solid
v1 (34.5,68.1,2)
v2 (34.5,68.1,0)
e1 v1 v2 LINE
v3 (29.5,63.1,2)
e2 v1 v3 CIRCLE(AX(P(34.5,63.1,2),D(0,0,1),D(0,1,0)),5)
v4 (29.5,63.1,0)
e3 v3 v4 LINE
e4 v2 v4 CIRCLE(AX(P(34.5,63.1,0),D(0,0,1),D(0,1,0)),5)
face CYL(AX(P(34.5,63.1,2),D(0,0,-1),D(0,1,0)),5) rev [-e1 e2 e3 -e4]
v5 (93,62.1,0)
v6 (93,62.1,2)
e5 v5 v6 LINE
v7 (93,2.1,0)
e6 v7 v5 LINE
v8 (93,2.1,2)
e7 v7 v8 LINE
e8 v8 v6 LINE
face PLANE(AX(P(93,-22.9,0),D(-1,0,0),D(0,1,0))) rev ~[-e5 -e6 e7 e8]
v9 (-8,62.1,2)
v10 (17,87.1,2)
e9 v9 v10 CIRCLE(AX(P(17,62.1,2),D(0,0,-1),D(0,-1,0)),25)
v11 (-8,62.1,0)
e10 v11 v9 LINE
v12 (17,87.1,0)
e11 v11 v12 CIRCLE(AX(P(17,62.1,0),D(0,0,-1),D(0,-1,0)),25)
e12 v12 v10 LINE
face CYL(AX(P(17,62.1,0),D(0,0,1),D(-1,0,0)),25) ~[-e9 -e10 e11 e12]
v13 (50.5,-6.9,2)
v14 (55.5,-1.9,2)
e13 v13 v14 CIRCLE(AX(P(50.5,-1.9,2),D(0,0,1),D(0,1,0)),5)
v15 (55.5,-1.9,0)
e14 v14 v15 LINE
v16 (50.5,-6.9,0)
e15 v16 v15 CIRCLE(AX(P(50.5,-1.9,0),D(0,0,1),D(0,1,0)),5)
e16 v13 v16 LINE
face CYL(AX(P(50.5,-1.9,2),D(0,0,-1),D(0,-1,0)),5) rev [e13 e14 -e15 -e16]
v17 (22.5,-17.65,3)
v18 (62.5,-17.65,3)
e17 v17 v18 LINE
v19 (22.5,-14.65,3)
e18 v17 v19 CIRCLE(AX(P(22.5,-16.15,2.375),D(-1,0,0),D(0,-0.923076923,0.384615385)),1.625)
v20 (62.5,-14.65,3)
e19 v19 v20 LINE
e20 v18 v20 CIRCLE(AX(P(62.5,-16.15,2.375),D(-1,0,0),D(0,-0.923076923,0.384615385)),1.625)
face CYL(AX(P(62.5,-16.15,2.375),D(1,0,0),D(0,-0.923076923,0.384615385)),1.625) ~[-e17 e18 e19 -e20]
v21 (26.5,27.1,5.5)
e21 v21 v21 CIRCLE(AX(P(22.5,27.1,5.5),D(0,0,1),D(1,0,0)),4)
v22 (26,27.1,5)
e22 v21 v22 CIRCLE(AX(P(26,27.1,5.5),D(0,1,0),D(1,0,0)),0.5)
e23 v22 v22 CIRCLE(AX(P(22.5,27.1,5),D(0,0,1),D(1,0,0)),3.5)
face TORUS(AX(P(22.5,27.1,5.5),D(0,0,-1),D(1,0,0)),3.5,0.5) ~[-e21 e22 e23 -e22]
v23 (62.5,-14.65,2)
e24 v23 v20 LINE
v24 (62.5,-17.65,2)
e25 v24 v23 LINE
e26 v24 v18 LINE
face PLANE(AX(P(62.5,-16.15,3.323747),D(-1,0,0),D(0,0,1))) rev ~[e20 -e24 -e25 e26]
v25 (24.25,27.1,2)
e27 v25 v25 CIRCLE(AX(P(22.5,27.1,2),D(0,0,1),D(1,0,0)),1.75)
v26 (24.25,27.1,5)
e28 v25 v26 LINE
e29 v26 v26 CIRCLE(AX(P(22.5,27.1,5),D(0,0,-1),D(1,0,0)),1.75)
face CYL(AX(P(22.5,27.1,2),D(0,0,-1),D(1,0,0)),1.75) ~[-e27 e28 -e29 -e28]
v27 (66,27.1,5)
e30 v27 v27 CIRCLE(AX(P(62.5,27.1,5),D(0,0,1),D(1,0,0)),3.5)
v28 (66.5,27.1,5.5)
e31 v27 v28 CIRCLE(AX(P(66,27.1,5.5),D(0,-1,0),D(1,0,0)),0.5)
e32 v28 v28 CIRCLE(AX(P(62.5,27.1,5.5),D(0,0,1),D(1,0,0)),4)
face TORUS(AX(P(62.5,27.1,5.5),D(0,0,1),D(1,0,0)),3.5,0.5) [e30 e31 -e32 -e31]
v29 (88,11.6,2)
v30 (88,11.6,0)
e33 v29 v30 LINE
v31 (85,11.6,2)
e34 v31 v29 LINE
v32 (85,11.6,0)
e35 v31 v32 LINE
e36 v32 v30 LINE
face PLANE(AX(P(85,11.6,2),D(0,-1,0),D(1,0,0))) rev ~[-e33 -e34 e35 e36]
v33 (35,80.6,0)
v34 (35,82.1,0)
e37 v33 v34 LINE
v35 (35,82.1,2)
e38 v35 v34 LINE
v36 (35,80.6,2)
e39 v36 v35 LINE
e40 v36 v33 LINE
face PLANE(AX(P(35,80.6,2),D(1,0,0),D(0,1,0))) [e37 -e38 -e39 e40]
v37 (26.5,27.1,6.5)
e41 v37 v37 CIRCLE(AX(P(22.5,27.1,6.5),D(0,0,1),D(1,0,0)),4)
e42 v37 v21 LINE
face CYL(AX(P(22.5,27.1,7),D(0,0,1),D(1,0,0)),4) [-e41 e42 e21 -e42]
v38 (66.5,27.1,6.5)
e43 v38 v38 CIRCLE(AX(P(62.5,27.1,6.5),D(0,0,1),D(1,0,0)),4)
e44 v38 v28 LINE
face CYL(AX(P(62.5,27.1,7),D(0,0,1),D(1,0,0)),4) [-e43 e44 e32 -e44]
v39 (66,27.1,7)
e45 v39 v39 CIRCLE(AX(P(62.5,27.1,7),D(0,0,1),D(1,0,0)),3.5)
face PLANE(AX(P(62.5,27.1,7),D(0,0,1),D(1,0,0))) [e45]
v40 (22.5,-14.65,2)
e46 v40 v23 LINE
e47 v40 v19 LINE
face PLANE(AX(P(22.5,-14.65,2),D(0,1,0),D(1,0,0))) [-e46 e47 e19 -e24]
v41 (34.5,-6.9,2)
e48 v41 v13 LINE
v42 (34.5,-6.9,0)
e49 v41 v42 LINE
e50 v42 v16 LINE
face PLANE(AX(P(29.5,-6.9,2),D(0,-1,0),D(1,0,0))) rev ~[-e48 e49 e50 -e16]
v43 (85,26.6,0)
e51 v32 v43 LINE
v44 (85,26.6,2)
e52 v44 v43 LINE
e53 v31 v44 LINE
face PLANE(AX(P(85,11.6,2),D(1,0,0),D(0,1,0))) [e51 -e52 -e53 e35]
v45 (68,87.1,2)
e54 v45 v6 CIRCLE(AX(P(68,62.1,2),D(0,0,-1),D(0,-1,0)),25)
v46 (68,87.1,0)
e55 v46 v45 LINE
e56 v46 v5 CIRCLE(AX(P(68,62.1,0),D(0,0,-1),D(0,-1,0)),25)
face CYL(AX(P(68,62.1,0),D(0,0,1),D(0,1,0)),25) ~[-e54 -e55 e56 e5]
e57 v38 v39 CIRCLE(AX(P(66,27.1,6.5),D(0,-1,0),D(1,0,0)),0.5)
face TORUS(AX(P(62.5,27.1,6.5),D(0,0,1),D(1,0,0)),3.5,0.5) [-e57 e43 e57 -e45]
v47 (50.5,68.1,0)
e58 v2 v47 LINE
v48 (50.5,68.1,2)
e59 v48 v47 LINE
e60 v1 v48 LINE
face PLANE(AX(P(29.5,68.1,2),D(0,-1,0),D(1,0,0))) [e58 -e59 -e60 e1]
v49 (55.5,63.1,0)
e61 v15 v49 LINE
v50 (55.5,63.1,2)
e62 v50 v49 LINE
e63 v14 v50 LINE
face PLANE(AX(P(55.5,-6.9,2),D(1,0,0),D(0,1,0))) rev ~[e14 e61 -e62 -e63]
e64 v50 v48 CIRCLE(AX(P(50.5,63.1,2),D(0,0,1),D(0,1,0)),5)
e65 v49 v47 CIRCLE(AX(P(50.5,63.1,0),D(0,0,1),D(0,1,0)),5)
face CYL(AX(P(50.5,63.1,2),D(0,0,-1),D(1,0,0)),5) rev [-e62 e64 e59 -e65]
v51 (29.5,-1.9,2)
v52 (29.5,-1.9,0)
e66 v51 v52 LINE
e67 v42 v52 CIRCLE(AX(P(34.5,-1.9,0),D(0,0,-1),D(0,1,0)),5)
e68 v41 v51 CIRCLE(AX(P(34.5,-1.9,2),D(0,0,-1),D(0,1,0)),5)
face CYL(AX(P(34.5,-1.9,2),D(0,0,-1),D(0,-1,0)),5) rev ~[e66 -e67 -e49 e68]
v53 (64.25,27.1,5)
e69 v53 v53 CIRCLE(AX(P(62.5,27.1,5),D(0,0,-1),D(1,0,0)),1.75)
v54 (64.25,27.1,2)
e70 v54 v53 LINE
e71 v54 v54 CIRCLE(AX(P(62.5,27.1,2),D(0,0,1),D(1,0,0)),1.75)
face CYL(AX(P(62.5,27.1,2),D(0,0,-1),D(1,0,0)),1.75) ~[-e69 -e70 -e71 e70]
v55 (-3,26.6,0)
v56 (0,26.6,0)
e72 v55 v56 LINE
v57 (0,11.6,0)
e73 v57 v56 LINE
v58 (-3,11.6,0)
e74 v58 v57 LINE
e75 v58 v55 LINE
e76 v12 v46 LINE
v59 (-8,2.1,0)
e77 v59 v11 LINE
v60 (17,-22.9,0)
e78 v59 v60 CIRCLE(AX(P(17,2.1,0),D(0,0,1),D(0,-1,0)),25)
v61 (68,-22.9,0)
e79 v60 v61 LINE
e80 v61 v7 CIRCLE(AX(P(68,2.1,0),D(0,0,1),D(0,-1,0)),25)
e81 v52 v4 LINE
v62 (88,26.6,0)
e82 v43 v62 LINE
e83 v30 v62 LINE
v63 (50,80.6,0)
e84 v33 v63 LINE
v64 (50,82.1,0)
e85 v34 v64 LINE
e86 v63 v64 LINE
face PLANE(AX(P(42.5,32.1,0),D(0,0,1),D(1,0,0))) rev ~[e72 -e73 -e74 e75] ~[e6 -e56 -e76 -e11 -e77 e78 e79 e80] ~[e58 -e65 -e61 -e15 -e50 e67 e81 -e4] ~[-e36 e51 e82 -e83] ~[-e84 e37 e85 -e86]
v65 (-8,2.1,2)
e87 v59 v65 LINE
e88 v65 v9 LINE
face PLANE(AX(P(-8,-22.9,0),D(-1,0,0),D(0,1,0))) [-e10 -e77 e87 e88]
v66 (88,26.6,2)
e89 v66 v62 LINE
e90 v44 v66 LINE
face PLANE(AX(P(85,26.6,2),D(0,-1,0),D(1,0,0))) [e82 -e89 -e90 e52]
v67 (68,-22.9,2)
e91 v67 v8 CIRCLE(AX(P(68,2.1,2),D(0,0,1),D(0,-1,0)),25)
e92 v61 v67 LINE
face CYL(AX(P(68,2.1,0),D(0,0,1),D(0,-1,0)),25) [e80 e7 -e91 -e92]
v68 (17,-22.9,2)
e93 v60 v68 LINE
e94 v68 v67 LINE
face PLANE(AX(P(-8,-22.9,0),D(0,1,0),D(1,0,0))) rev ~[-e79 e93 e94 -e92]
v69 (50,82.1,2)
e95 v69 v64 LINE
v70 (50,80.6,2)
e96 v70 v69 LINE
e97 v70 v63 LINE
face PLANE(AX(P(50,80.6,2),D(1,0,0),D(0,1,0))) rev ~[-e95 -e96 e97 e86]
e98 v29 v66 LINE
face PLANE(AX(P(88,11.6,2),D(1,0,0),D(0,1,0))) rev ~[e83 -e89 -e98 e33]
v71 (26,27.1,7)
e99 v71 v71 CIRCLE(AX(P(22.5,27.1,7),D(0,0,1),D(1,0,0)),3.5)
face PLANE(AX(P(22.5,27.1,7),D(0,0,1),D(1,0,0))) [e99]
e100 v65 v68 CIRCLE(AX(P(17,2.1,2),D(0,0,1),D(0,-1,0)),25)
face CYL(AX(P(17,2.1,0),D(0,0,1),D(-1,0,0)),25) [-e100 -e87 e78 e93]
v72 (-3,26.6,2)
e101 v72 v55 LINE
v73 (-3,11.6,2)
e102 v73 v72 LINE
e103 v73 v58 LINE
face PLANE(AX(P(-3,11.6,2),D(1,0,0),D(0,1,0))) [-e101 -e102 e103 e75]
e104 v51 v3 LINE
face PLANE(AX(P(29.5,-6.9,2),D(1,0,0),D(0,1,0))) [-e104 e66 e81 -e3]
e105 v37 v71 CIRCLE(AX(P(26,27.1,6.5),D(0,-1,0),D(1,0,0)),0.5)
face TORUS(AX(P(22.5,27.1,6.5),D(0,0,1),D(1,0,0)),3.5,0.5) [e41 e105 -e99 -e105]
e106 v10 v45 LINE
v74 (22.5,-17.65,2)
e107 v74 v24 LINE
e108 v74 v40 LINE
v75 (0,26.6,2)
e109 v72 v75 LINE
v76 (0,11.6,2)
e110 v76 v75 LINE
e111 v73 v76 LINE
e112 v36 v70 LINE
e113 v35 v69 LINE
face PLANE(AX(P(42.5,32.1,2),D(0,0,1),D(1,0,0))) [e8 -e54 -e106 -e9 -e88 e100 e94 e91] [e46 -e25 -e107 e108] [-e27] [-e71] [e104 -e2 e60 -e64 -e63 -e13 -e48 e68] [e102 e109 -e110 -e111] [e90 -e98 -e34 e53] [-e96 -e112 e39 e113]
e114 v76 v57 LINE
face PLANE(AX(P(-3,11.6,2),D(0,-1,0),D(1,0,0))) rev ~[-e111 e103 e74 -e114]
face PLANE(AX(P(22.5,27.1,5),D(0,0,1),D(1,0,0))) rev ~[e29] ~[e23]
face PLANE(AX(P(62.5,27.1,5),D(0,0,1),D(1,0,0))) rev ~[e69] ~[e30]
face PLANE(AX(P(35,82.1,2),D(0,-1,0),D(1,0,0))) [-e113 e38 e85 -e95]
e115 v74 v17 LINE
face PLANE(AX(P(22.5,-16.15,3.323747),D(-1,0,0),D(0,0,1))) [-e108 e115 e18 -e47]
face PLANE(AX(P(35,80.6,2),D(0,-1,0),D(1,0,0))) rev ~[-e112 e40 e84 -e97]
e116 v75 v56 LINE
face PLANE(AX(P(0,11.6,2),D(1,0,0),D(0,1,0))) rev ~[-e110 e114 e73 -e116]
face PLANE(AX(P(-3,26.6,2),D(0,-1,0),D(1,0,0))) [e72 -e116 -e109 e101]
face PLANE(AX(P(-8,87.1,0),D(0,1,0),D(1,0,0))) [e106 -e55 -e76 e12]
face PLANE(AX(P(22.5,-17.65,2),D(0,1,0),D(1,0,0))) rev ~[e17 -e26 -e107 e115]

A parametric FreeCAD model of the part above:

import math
import FreeCAD as App
import Part
import Sketcher
from FreeCAD import Vector


def edges_at(feature, points):
    """Names of the edges that pass closest to the given points."""
    edges = feature.Shape.Edges
    near = lambda p: min(range(len(edges)), key=lambda i: edges[i].distToShape(Part.Vertex(*p))[0])
    return sorted({f"Edge{near(p) + 1}" for p in points})


def add_polygon(sketch, points):
    """Adds a closed chain of lines whose ends are joined by coincident constraints."""
    first, n = sketch.GeometryCount, len(points)
    for a, b in zip(points, points[1:] + points[:1]):
        sketch.addGeometry(Part.LineSegment(App.Vector(*a, 0), App.Vector(*b, 0)), False)
    for i in range(n):
        sketch.addConstraint(Sketcher.Constraint("Coincident", first + i, 2, first + (i + 1) % n, 1))

doc = App.newDocument("Part")
body = doc.addObject("PartDesign::Body", "Body")

# Sketch on XY plane
sketch1 = body.newObject("Sketcher::SketchObject", "Sketch")
sketch1.AttachmentSupport = (doc.getObject("XY_Plane"), [""])
sketch1.MapMode = "FlatFace"
add_polygon(sketch1, [(-8, 87), (-8, -23), (93, -23), (93, 87)])  # lines 0-3
sketch1.addConstraint(Sketcher.Constraint("Vertical", 0))
sketch1.addConstraint(Sketcher.Constraint("Horizontal", 1))
sketch1.addConstraint(Sketcher.Constraint("Vertical", 2))
sketch1.addConstraint(Sketcher.Constraint("Horizontal", 3))
sketch1.addConstraint(Sketcher.Constraint("DistanceX", 1, 1, 1, 2, 101.0))
sketch1.addConstraint(Sketcher.Constraint("DistanceY", 0, 2, 0, 1, 110.0))
sketch1.addConstraint(Sketcher.Constraint("DistanceX", 0, 2, -1, 1, 8.0))
sketch1.addConstraint(Sketcher.Constraint("DistanceY", 0, 2, -1, 1, 22.9))
pad1 = body.newObject("PartDesign::Pad", "Pad")
pad1.Profile = sketch1
pad1.Length = 2

# Sketch on XY plane
sketch2 = body.newObject("Sketcher::SketchObject", "Sketch001")
sketch2.AttachmentSupport = (doc.getObject("XY_Plane"), [""])
sketch2.MapMode = "FlatFace"
sketch2.AttachmentOffset = App.Placement(Vector(0, 0, 2), App.Rotation())
add_polygon(sketch2, [(35, 82.1), (35, 80.6), (50, 80.6), (50, 82.1)])  # lines 0-3
add_polygon(sketch2, [(-3, 26.6), (-3, 11.6), (0, 11.6), (0, 26.6)])  # lines 4-7
add_polygon(sketch2, [(85, 26.6), (85, 11.6), (88, 11.6), (88, 26.6)])  # lines 8-11
sketch2.addConstraint(Sketcher.Constraint("Vertical", 0))
sketch2.addConstraint(Sketcher.Constraint("Horizontal", 1))
sketch2.addConstraint(Sketcher.Constraint("Vertical", 2))
sketch2.addConstraint(Sketcher.Constraint("Horizontal", 3))
sketch2.addConstraint(Sketcher.Constraint("Vertical", 4))
sketch2.addConstraint(Sketcher.Constraint("Horizontal", 5))
sketch2.addConstraint(Sketcher.Constraint("Vertical", 6))
sketch2.addConstraint(Sketcher.Constraint("Horizontal", 7))
sketch2.addConstraint(Sketcher.Constraint("Vertical", 8))
sketch2.addConstraint(Sketcher.Constraint("Horizontal", 9))
sketch2.addConstraint(Sketcher.Constraint("Vertical", 10))
sketch2.addConstraint(Sketcher.Constraint("Horizontal", 11))
sketch2.addConstraint(Sketcher.Constraint("PointOnObject", 5, 2, -2))
sketch2.addConstraint(Sketcher.Constraint("Horizontal", 5, 2, 8, 2))
sketch2.addConstraint(Sketcher.Constraint("Horizontal", 7, 2, 10, 2))
sketch2.addConstraint(Sketcher.Constraint("Equal", 7, 9))
sketch2.addConstraint(Sketcher.Constraint("Equal", 3, 4))
sketch2.addConstraint(Sketcher.Constraint("DistanceX", 1, 1, 1, 2, 15.0))
sketch2.addConstraint(Sketcher.Constraint("DistanceX", 5, 1, 5, 2, 3.0))
sketch2.addConstraint(Sketcher.Constraint("DistanceY", 0, 2, 0, 1, 1.5))
sketch2.addConstraint(Sketcher.Constraint("DistanceX", -1, 1, 0, 2, 35.0))
sketch2.addConstraint(Sketcher.Constraint("DistanceX", -1, 1, 8, 2, 85.0))
sketch2.addConstraint(Sketcher.Constraint("DistanceY", 4, 2, 0, 2, 69.0))
sketch2.addConstraint(Sketcher.Constraint("DistanceY", -1, 1, 0, 2, 80.6))
pocket1 = body.newObject("PartDesign::Pocket", "Pocket")
pocket1.Profile = sketch2
pocket1.Type = "ThroughAll"

# Sketch on XY plane
sketch3 = body.newObject("Sketcher::SketchObject", "Sketch002")
sketch3.AttachmentSupport = (doc.getObject("XY_Plane"), [""])
sketch3.MapMode = "FlatFace"
sketch3.AttachmentOffset = App.Placement(Vector(0, 0, 2), App.Rotation())
sketch3.addGeometry(Part.Circle(Vector(22.5, 27.1, 0), Vector(0, 0, 1), 1.8), False)
sketch3.addGeometry(Part.Circle(Vector(62.5, 27.1, 0), Vector(0, 0, 1), 1.8), False)
sketch3.addConstraint(Sketcher.Constraint("Equal", 0, 1))
sketch3.addConstraint(Sketcher.Constraint("Horizontal", 0, 3, 1, 3))
sketch3.addConstraint(Sketcher.Constraint("Diameter", 0, 3.5))
sketch3.addConstraint(Sketcher.Constraint("DistanceX", 0, 3, 1, 3, 40.0))
sketch3.addConstraint(Sketcher.Constraint("DistanceX", -1, 1, 0, 3, 22.5))
sketch3.addConstraint(Sketcher.Constraint("DistanceY", -1, 1, 0, 3, 27.1))
pad2 = body.newObject("PartDesign::Pad", "Pad001")
pad2.Profile = sketch3
pad2.Length = 5

# Sketch on XY plane
sketch4 = body.newObject("Sketcher::SketchObject", "Sketch003")
sketch4.AttachmentSupport = (doc.getObject("XY_Plane"), [""])
sketch4.MapMode = "FlatFace"
sketch4.AttachmentOffset = App.Placement(Vector(0, 0, 7), App.Rotation())
sketch4.addGeometry(Part.Circle(Vector(22.5, 27.1, 0), Vector(0, 0, 1), 4), False)
sketch4.addGeometry(Part.Circle(Vector(62.5, 27.1, 0), Vector(0, 0, 1), 4), False)
sketch4.addConstraint(Sketcher.Constraint("Equal", 0, 1))
sketch4.addConstraint(Sketcher.Constraint("Horizontal", 0, 3, 1, 3))
sketch4.addConstraint(Sketcher.Constraint("Diameter", 0, 8.0))
sketch4.addConstraint(Sketcher.Constraint("DistanceX", 0, 3, 1, 3, 40.0))
sketch4.addConstraint(Sketcher.Constraint("DistanceX", -1, 1, 0, 3, 22.5))
sketch4.addConstraint(Sketcher.Constraint("DistanceY", -1, 1, 0, 3, 27.1))
pad3 = body.newObject("PartDesign::Pad", "Pad002")
pad3.Profile = sketch4
pad3.Length = 2
pad3.Reversed = True
doc.recompute()

fillet = body.newObject("PartDesign::Fillet", "Fillet")
fillet.Base = (pad3, edges_at(pad3, [
    (18.5, 27.1, 5),
    (18.5, 27.1, 7),
    (58.5, 27.1, 5),
    (58.5, 27.1, 7),
]))
fillet.Radius = 0.5
doc.recompute()

fillet2 = body.newObject("PartDesign::Fillet", "Fillet001")
fillet2.Base = (fillet, edges_at(fillet, [
    (-8, 87.1, 1),
    (93, 87.1, 1),
    (93, -22.9, 1),
    (-8, -22.9, 1),
]))
fillet2.Radius = 25

# Sketch on XY plane
sketch5 = body.newObject("Sketcher::SketchObject", "Sketch004")
sketch5.AttachmentSupport = (doc.getObject("XY_Plane"), [""])
sketch5.MapMode = "FlatFace"
sketch5.AttachmentOffset = App.Placement(Vector(0, 0, 2), App.Rotation())
add_polygon(sketch5, [(22.5, -14.7), (22.5, -17.6), (62.5, -17.6), (62.5, -14.7)])  # lines 0-3
sketch5.addConstraint(Sketcher.Constraint("Vertical", 0))
sketch5.addConstraint(Sketcher.Constraint("Horizontal", 1))
sketch5.addConstraint(Sketcher.Constraint("Vertical", 2))
sketch5.addConstraint(Sketcher.Constraint("Horizontal", 3))
sketch5.addConstraint(Sketcher.Constraint("DistanceX", 1, 1, 1, 2, 40.0))
sketch5.addConstraint(Sketcher.Constraint("DistanceY", 0, 2, 0, 1, 3.0))
sketch5.addConstraint(Sketcher.Constraint("DistanceX", -1, 1, 0, 2, 22.5))
sketch5.addConstraint(Sketcher.Constraint("DistanceY", 0, 2, -1, 1, 17.65))
pad4 = body.newObject("PartDesign::Pad", "Pad003")
pad4.Profile = sketch5
pad4.Length = 1

# Sketch on YZ plane
sketch6 = body.newObject("Sketcher::SketchObject", "Sketch005")
sketch6.AttachmentSupport = (doc.getObject("YZ_Plane"), [""])
sketch6.MapMode = "FlatFace"
sketch6.AttachmentOffset = App.Placement(Vector(0, 0, 62.5), App.Rotation())
sketch6.addGeometry(Part.LineSegment(Vector(-17.6, 3, 0), Vector(-14.7, 3, 0)), False)
sketch6.addGeometry(Part.ArcOfCircle(Part.Circle(Vector(-16.1, 2.4, 0), Vector(0, 0, 1), 1.6), math.radians(23), math.radians(157)), False)
sketch6.addConstraint(Sketcher.Constraint("Coincident", 0, 1, 1, 2))
sketch6.addConstraint(Sketcher.Constraint("Coincident", 1, 1, 0, 2))
sketch6.addConstraint(Sketcher.Constraint("Horizontal", 0))
sketch6.addConstraint(Sketcher.Constraint("DistanceX", 0, 1, 0, 2, 3.0))
sketch6.addConstraint(Sketcher.Constraint("DistanceY", -1, 1, 0, 1, 3.0))
sketch6.addConstraint(Sketcher.Constraint("Radius", 1, 1.625))
sketch6.addConstraint(Sketcher.Constraint("DistanceX", 1, 3, -1, 1, 16.15))
pad5 = body.newObject("PartDesign::Pad", "Pad004")
pad5.Profile = sketch6
pad5.Length = 40
pad5.Reversed = True

# Sketch on XY plane
sketch7 = body.newObject("Sketcher::SketchObject", "Sketch006")
sketch7.AttachmentSupport = (doc.getObject("XY_Plane"), [""])
sketch7.MapMode = "FlatFace"
sketch7.AttachmentOffset = App.Placement(Vector(0, 0, 2), App.Rotation())
add_polygon(sketch7, [(30, 68), (30, -7), (56, -7), (56, 68)])  # lines 0-3
sketch7.addConstraint(Sketcher.Constraint("Vertical", 0))
sketch7.addConstraint(Sketcher.Constraint("Horizontal", 1))
sketch7.addConstraint(Sketcher.Constraint("Vertical", 2))
sketch7.addConstraint(Sketcher.Constraint("Horizontal", 3))
sketch7.addConstraint(Sketcher.Constraint("DistanceX", 1, 1, 1, 2, 26.0))
sketch7.addConstraint(Sketcher.Constraint("DistanceY", 0, 2, 0, 1, 75.0))
sketch7.addConstraint(Sketcher.Constraint("DistanceX", -1, 1, 0, 2, 29.5))
sketch7.addConstraint(Sketcher.Constraint("DistanceY", 0, 2, -1, 1, 6.9))
pocket2 = body.newObject("PartDesign::Pocket", "Pocket001")
pocket2.Profile = sketch7
pocket2.Type = "ThroughAll"
doc.recompute()

fillet3 = body.newObject("PartDesign::Fillet", "Fillet002")
fillet3.Base = (pocket2, edges_at(pocket2, [
    (29.5, -6.9, 1),
    (29.5, 68.1, 1),
    (55.5, 68.1, 1),
    (55.5, -6.9, 1),
]))
fillet3.Radius = 5

doc.recompute()
